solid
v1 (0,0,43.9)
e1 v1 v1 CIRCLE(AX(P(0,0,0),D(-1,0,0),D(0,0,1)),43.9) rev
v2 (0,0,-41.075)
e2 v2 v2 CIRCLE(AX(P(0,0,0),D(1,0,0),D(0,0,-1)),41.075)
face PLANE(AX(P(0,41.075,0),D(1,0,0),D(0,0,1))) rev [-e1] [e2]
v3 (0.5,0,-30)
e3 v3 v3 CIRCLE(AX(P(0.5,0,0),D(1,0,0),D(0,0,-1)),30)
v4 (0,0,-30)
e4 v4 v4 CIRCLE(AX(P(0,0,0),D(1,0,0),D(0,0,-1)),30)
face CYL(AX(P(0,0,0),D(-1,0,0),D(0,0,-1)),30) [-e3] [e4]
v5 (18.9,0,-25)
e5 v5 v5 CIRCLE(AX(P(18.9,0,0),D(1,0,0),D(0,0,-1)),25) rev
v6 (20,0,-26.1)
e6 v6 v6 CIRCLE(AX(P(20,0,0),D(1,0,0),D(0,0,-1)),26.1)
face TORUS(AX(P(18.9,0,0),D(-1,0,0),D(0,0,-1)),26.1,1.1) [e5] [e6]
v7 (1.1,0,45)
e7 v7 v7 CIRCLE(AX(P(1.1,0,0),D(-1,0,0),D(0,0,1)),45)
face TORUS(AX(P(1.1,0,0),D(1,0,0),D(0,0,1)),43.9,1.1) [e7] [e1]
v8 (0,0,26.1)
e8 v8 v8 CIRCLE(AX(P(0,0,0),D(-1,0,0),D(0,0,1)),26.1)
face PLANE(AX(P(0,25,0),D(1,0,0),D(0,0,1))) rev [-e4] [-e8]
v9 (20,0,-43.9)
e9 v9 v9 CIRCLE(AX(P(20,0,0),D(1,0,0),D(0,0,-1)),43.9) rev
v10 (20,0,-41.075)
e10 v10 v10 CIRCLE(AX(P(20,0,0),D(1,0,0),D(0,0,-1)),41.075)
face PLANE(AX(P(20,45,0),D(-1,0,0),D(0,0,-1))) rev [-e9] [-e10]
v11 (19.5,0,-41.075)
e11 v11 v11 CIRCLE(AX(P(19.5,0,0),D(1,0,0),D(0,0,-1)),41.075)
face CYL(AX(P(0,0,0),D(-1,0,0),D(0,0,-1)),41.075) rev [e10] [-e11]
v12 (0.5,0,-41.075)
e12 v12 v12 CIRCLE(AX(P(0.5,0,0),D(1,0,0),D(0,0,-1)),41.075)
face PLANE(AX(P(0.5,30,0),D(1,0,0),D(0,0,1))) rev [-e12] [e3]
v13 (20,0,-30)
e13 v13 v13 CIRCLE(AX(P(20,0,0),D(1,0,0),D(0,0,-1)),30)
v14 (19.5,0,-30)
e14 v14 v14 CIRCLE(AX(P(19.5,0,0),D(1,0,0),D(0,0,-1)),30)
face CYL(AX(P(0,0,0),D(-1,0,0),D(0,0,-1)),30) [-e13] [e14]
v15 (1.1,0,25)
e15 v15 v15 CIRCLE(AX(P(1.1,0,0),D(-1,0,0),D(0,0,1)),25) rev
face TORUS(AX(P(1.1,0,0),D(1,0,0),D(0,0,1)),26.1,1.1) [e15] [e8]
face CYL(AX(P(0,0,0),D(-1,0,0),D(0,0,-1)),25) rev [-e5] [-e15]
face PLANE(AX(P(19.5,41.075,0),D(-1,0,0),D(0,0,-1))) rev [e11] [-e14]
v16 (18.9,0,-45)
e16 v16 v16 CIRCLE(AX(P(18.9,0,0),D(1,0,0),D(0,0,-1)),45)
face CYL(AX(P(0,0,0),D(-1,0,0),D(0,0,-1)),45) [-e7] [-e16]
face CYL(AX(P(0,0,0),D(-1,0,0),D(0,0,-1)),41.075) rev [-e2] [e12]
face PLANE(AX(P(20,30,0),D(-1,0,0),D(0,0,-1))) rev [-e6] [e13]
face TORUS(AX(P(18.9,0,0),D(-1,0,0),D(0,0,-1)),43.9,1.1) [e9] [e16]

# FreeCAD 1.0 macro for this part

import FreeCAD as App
import Part
import Sketcher
Q = App.Units.Quantity


def edges_at(feature, points):
    """Names of the edges that pass closest to the given points."""
    edges = feature.Shape.Edges
    near = lambda p: min(range(len(edges)), key=lambda i: edges[i].distToShape(Part.Vertex(*p))[0])
    return sorted({f"Edge{near(p) + 1}" for p in points})

doc = App.newDocument("Part")
body = doc.addObject("PartDesign::Body", "Body")

# Sketch on XY plane
sketch1 = body.newObject("Sketcher::SketchObject", "Sketch")
sketch1.AttachmentSupport = (doc.getObject("XY_Plane"), [""])
sketch1.MapMode = "FlatFace"
sketch1.addGeometry(Part.LineSegment(App.Vector(0, 30, 0), App.Vector(0, 25, 0)), False)
sketch1.addGeometry(Part.LineSegment(App.Vector(0, 25, 0), App.Vector(20, 25, 0)), False)
sketch1.addGeometry(Part.LineSegment(App.Vector(20, 25, 0), App.Vector(20, 30, 0)), False)
sketch1.addGeometry(Part.LineSegment(App.Vector(20, 30, 0), App.Vector(19.5, 30, 0)), False)
sketch1.addGeometry(Part.LineSegment(App.Vector(19.5, 30, 0), App.Vector(19.5, 41.1, 0)), False)
sketch1.addGeometry(Part.LineSegment(App.Vector(19.5, 41.1, 0), App.Vector(20, 41.1, 0)), False)
sketch1.addGeometry(Part.LineSegment(App.Vector(20, 41.1, 0), App.Vector(20, 45, 0)), False)
sketch1.addGeometry(Part.LineSegment(App.Vector(20, 45, 0), App.Vector(0, 45, 0)), False)
sketch1.addGeometry(Part.LineSegment(App.Vector(0, 45, 0), App.Vector(0, 41.1, 0)), False)
sketch1.addGeometry(Part.LineSegment(App.Vector(0, 41.1, 0), App.Vector(0.5, 41.1, 0)), False)
sketch1.addGeometry(Part.LineSegment(App.Vector(0.5, 41.1, 0), App.Vector(0.5, 30, 0)), False)
sketch1.addGeometry(Part.LineSegment(App.Vector(0.5, 30, 0), App.Vector(0, 30, 0)), False)
sketch1.addConstraint(Sketcher.Constraint("Coincident", 0, 2, 1, 1))
sketch1.addConstraint(Sketcher.Constraint("Coincident", 1, 2, 2, 1))
sketch1.addConstraint(Sketcher.Constraint("Coincident", 2, 2, 3, 1))
sketch1.addConstraint(Sketcher.Constraint("Coincident", 3, 2, 4, 1))
sketch1.addConstraint(Sketcher.Constraint("Coincident", 4, 2, 5, 1))
sketch1.addConstraint(Sketcher.Constraint("Coincident", 5, 2, 6, 1))
sketch1.addConstraint(Sketcher.Constraint("Coincident", 6, 2, 7, 1))
sketch1.addConstraint(Sketcher.Constraint("Coincident", 7, 2, 8, 1))
sketch1.addConstraint(Sketcher.Constraint("Coincident", 8, 2, 9, 1))
sketch1.addConstraint(Sketcher.Constraint("Coincident", 9, 2, 10, 1))
sketch1.addConstraint(Sketcher.Constraint("Coincident", 10, 2, 11, 1))
sketch1.addConstraint(Sketcher.Constraint("Coincident", 11, 2, 0, 1))
sketch1.addConstraint(Sketcher.Constraint("Vertical", 0))
sketch1.addConstraint(Sketcher.Constraint("Horizontal", 1))
sketch1.addConstraint(Sketcher.Constraint("Vertical", 2))
sketch1.addConstraint(Sketcher.Constraint("Horizontal", 3))
sketch1.addConstraint(Sketcher.Constraint("Vertical", 4))
sketch1.addConstraint(Sketcher.Constraint("Horizontal", 5))
sketch1.addConstraint(Sketcher.Constraint("Vertical", 6))
sketch1.addConstraint(Sketcher.Constraint("Horizontal", 7))
sketch1.addConstraint(Sketcher.Constraint("Vertical", 8))
sketch1.addConstraint(Sketcher.Constraint("Horizontal", 9))
sketch1.addConstraint(Sketcher.Constraint("Vertical", 10))
sketch1.addConstraint(Sketcher.Constraint("Horizontal", 11))
sketch1.addConstraint(Sketcher.Constraint("PointOnObject", 0, 2, -2))
sketch1.addConstraint(Sketcher.Constraint("PointOnObject", 7, 2, -2))
sketch1.addConstraint(Sketcher.Constraint("Horizontal", 5, 2, 8, 2))
sketch1.addConstraint(Sketcher.Constraint("Horizontal", 3, 2, 10, 2))
sketch1.addConstraint(Sketcher.Constraint("Vertical", 2, 2, 5, 2))
sketch1.addConstraint(Sketcher.Constraint("Equal", 5, 9))
sketch1.addConstraint(Sketcher.Constraint("DistanceX", 1, 1, 1, 2, Q("20 mm")))
sketch1.addConstraint(Sketcher.Constraint("DistanceY", 0, 2, 0, 1, Q("5 mm")))
sketch1.addConstraint(Sketcher.Constraint("DistanceX", 3, 2, 3, 1, Q("0.5 mm")))
sketch1.addConstraint(Sketcher.Constraint("DistanceY", -1, 1, 0, 2, Q("25 mm")))
sketch1.addConstraint(Sketcher.Constraint("DistanceY", -1, 1, 6, 2, Q("45 mm")))
sketch1.addConstraint(Sketcher.Constraint("DistanceY", 4, 1, 4, 2, Q("11.075 mm")))
revolution = body.newObject("PartDesign::Revolution", "Revolution")
revolution.Profile = sketch1
revolution.ReferenceAxis = (sketch1, ["H_Axis"])
revolution.Angle = 360
doc.recompute()

fillet = body.newObject("PartDesign::Fillet", "Fillet")
fillet.Base = (revolution, edges_at(revolution, [
    (20, 0, -45),
    (0, 0, -45),
    (0, 0, -25),
    (20, 0, -25),
]))
fillet.Radius = 1.1

doc.recompute()
